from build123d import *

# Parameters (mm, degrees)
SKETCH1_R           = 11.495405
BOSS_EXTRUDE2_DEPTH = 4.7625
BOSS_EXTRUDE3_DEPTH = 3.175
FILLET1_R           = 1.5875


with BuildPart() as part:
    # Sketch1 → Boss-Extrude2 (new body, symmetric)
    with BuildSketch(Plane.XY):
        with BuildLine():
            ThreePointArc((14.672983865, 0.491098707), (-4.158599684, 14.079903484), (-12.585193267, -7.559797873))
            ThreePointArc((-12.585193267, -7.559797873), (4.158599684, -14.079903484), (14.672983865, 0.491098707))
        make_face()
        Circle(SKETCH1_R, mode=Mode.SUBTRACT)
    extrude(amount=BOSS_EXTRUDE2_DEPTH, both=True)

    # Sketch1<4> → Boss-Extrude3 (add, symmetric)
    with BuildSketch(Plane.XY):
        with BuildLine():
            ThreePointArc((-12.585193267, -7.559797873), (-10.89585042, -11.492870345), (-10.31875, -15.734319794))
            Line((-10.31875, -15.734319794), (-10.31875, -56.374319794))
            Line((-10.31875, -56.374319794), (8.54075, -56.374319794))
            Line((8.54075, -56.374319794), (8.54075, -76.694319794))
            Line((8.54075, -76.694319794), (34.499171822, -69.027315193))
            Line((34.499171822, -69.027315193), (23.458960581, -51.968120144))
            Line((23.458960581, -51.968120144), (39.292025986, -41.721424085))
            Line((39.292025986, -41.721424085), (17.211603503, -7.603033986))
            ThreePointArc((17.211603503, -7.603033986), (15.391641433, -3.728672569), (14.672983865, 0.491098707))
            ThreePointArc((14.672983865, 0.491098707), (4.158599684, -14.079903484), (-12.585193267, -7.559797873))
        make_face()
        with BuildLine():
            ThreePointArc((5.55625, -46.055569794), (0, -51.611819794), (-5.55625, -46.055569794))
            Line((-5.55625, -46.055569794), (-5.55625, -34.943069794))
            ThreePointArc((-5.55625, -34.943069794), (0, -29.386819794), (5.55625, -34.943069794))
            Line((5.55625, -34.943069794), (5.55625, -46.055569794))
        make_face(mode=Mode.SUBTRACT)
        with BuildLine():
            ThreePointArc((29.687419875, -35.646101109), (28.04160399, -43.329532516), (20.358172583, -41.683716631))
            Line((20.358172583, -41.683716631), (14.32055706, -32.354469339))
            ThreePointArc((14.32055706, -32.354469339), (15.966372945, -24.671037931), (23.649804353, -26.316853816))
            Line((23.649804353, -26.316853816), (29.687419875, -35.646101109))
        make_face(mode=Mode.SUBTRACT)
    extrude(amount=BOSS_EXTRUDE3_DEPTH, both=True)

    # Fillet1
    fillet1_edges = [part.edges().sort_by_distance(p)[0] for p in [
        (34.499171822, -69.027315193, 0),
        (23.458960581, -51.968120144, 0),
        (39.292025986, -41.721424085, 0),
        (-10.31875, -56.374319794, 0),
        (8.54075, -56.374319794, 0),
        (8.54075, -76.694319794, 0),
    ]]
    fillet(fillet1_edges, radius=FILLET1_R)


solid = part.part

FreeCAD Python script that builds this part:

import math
import FreeCAD as App
import Part
import Sketcher
from FreeCAD import Vector
Q = App.Units.Quantity


def edges_at(feature, points):
    """Names of the edges that pass closest to the given points."""
    edges = feature.Shape.Edges
    near = lambda p: min(range(len(edges)), key=lambda i: edges[i].distToShape(Part.Vertex(*p))[0])
    return sorted({f"Edge{near(p) + 1}" for p in points})

doc = App.newDocument("Part")
params = doc.addObject("Spreadsheet::Sheet", "Params")
for row, (alias, value) in enumerate([
    ("sketch1_radius", "0.578 in"),
    ("pad1_length", "0.375 in"),
    ("sketch2_height", "1.6 in"),
    ("sketch2_height2", "0.8 in"),
    ("sketch2_radius", "0.625 in"),
    ("sketch2_radius2", "0.625 in"),
    ("sketch2_radius3", "0.578 in"),
    ("pad2_length", "0.25 in"),
    ("fillet_radius", "0.0625 in"),
], start=1):
    params.set(f"A{row}", alias)
    params.set(f"B{row}", "=" + value)
    params.setAlias(f"B{row}", alias)

body = doc.addObject("PartDesign::Body", "Body")

# Sketch on XY plane
sketch1 = doc.addObject("Sketcher::SketchObject", "Sketch")
body.addObject(sketch1)
sketch1.AttachmentSupport = (doc.XY_Plane, [""])
sketch1.MapMode = "FlatFace"
sketch1.addGeometry([
    Part.ArcOfCircle(Part.Circle(Vector(0, 0, 0), Vector(0, 0, 1), 15), math.radians(2), math.radians(211)),
    Part.ArcOfCircle(Part.Circle(Vector(0, 0, 0), Vector(0, 0, 1), 15), math.radians(-149), math.radians(2)),
    Part.Circle(Vector(0, 0, 0), Vector(0, 0, 1), 11),
], False)
sketch1.addConstraint([
    Sketcher.Constraint("Tangent", 0, 1, 1, 2),
    Sketcher.Constraint("Coincident", 1, 1, 0, 2),
    Sketcher.Constraint("Coincident", 0, 3, -1, 1),
    Sketcher.Constraint("Coincident", 2, 3, -1, 1),
    Sketcher.Constraint("Radius", 0, Q("0.578 in")),
    Sketcher.Constraint("Diameter", 2, Q("22.99081 mm")),
    Sketcher.Constraint("DistanceY", -1, 1, 0, 1, Q("0.491099 mm")),
    Sketcher.Constraint("DistanceX", 1, 1, -1, 1, Q("12.585193 mm")),
])
sketch1.setExpression("Constraints[4]", "Params.sketch1_radius")
pad1 = doc.addObject("PartDesign::Pad", "Pad")
body.addObject(pad1)
pad1.Profile = sketch1
pad1.setExpression("Length", "Params.pad1_length")
pad1.Midplane = True

# Sketch on XY plane
sketch2 = doc.addObject("Sketcher::SketchObject", "Sketch001")
body.addObject(sketch2)
sketch2.AttachmentSupport = (doc.XY_Plane, [""])
sketch2.MapMode = "FlatFace"
sketch2.addGeometry([
    Part.ArcOfCircle(Part.Circle(Vector(-26.19375, -15.73432, 0), Vector(0, 0, 1), 15.875), math.radians(0), math.radians(30.992811)),  # 0
    Part.LineSegment(Vector(-10.31875, -15.73432, 0), Vector(-10.31875, -56.37432, 0)),  # 1
    Part.LineSegment(Vector(-10.31875, -56.37432, 0), Vector(8.54075, -56.37432, 0)),  # 2
    Part.LineSegment(Vector(8.54075, -56.37432, 0), Vector(8.54075, -76.69432, 0)),  # 3
    Part.LineSegment(Vector(8.54075, -76.69432, 0), Vector(34.499172, -69.027315, 0)),  # 4
    Part.LineSegment(Vector(34.499172, -69.027315, 0), Vector(23.458961, -51.96812, 0)),  # 5
    Part.LineSegment(Vector(23.458961, -51.96812, 0), Vector(39.292026, -41.721424, 0)),  # 6
    Part.LineSegment(Vector(39.292026, -41.721424, 0), Vector(17.211604, -7.603034, 0)),  # 7
    Part.ArcOfCircle(Part.Circle(Vector(30.5391, 1.022131, 0), Vector(0, 0, 1), 15.875), math.radians(-178.08305), math.radians(-147.090239)),  # 8
    Part.ArcOfCircle(Part.Circle(Vector(0, 0, 0), Vector(0, 0, 1), 14.6812), math.radians(-149.007189), math.radians(1.91695)),  # 9
    Part.LineSegment(Vector(5.55625, -34.94307, 0), Vector(5.55625, -46.05557, 0)),  # 10
    Part.ArcOfCircle(Part.Circle(Vector(0, -46.05557, 0), Vector(0, 0, 1), 5.55625), math.radians(180), math.radians(360)),  # 11
    Part.LineSegment(Vector(-5.55625, -46.05557, 0), Vector(-5.55625, -34.94307, 0)),  # 12
    Part.ArcOfCircle(Part.Circle(Vector(0, -34.94307, 0), Vector(0, 0, 1), 5.55625), math.radians(0), math.radians(180)),  # 13
    Part.LineSegment(Vector(23.649804, -26.316854, 0), Vector(29.68742, -35.646101, 0)),  # 14
    Part.ArcOfCircle(Part.Circle(Vector(25.022796, -38.664909, 0), Vector(0, 0, 1), 5.55625), math.radians(-147.090239), math.radians(32.909761)),  # 15
    Part.LineSegment(Vector(20.358173, -41.683717, 0), Vector(14.320557, -32.354469, 0)),  # 16
    Part.ArcOfCircle(Part.Circle(Vector(18.985181, -29.335662, 0), Vector(0, 0, 1), 5.55625), math.radians(32.909761), math.radians(212.909761)),  # 17
], False)
sketch2.addConstraint([
    Sketcher.Constraint("Coincident", 0, 1, 1, 1),
    Sketcher.Constraint("Coincident", 1, 2, 2, 1),
    Sketcher.Constraint("Coincident", 2, 2, 3, 1),
    Sketcher.Constraint("Coincident", 3, 2, 4, 1),
    Sketcher.Constraint("Coincident", 4, 2, 5, 1),
    Sketcher.Constraint("Coincident", 5, 2, 6, 1),
    Sketcher.Constraint("Coincident", 6, 2, 7, 1),
    Sketcher.Constraint("Coincident", 7, 2, 8, 2),
    Sketcher.Constraint("Coincident", 8, 1, 9, 2),
    Sketcher.Constraint("Coincident", 9, 1, 0, 2),
    Sketcher.Constraint("Coincident", 10, 2, 11, 2),
    Sketcher.Constraint("Coincident", 11, 1, 12, 1),
    Sketcher.Constraint("Coincident", 12, 2, 13, 2),
    Sketcher.Constraint("Coincident", 13, 1, 10, 1),
    Sketcher.Constraint("Coincident", 14, 2, 15, 2),
    Sketcher.Constraint("Coincident", 15, 1, 16, 1),
    Sketcher.Constraint("Coincident", 16, 2, 17, 2),
    Sketcher.Constraint("Coincident", 17, 1, 14, 1),
    Sketcher.Constraint("Vertical", 1),
    Sketcher.Constraint("Horizontal", 2),
    Sketcher.Constraint("Vertical", 3),
    Sketcher.Constraint("Vertical", 10),
    Sketcher.Constraint("Vertical", 12),
    Sketcher.Constraint("Coincident", 9, 3, -1, 1),
    Sketcher.Constraint("PointOnObject", 11, 3, -2),
    Sketcher.Constraint("DistanceY", 1, 2, 1, 1, Q("1.6 in")),
    Sketcher.Constraint("DistanceY", 3, 2, 3, 1, Q("0.8 in")),
    Sketcher.Constraint("Radius", 0, Q("0.625 in")),
    Sketcher.Constraint("Radius", 8, Q("0.625 in")),
    Sketcher.Constraint("Radius", 9, Q("0.578 in")),
    Sketcher.Constraint("Radius", 11, Q("0.21875 in")),
    Sketcher.Constraint("Radius", 15, Q("0.21875 in")),
    Sketcher.Constraint("Radius", 17, Q("0.21875 in")),
    Sketcher.Constraint("Distance", 5, Q("0.8 in")),
    Sketcher.Constraint("Distance", 7, Q("1.6 in")),
    Sketcher.Constraint("DistanceY", 10, 2, 10, 1, Q("0.4375 in")),
    Sketcher.Constraint("DistanceY", 12, 1, 12, 2, Q("0.4375 in")),
    Sketcher.Constraint("Distance", 14, Q("0.4375 in")),
    Sketcher.Constraint("Distance", 16, Q("0.4375 in")),
    Sketcher.Constraint("DistanceX", 2, 1, 2, 2, Q("0.7425 in")),
    Sketcher.Constraint("DistanceX", 0, 3, -1, 1, Q("1.03125 in")),
    Sketcher.Constraint("DistanceY", 11, 3, 13, 3, Q("0.4375 in")),
    Sketcher.Constraint("DistanceY", 1, 2, 11, 3, Q("0.40625 in")),
    Sketcher.Constraint("DistanceY", 2, 2, 10, 2, Q("0.40625 in")),
    Sketcher.Constraint("DistanceY", 1, 2, 11, 1, Q("0.40625 in")),
    Sketcher.Constraint("Distance", 6, Q("0.7425 in")),
    Sketcher.Constraint("DistanceX", -1, 1, 8, 3, Q("30.5391 mm")),
    Sketcher.Constraint("DistanceY", -1, 1, 8, 1, Q("0.491099 mm")),
    Sketcher.Constraint("DistanceY", 14, 2, -1, 1, Q("35.646101 mm")),
    Sketcher.Constraint("DistanceY", 11, 3, 8, 3, Q("47.077701 mm")),
    Sketcher.Constraint("DistanceY", 2, 2, 5, 2, Q("4.4062 mm")),
    Sketcher.Constraint("DistanceY", 13, 1, 16, 2, Q("2.5886 mm")),
    Sketcher.Constraint("DistanceY", 15, 3, -1, 1, Q("38.664909 mm")),
    Sketcher.Constraint("DistanceX", -1, 1, 17, 3, Q("18.985181 mm")),
    Sketcher.Constraint("DistanceY", 17, 3, -1, 1, Q("29.335662 mm")),
    Sketcher.Constraint("DistanceX", -1, 1, 4, 2, Q("34.499172 mm")),
    Sketcher.Constraint("DistanceX", -1, 1, 5, 2, Q("23.458961 mm")),
    Sketcher.Constraint("DistanceX", -1, 1, 14, 2, Q("29.68742 mm")),
    Sketcher.Constraint("DistanceX", 15, 3, 6, 2, Q("14.26923 mm")),
    Sketcher.Constraint("DistanceY", 0, 1, 9, 1, Q("8.174522 mm")),
])
sketch2.setExpression("Constraints[25]", "Params.sketch2_height")
sketch2.setExpression("Constraints[26]", "Params.sketch2_height2")
sketch2.setExpression("Constraints[27]", "Params.sketch2_radius")
sketch2.setExpression("Constraints[28]", "Params.sketch2_radius2")
sketch2.setExpression("Constraints[29]", "Params.sketch2_radius3")
pad2 = doc.addObject("PartDesign::Pad", "Pad001")
body.addObject(pad2)
pad2.Profile = sketch2
pad2.setExpression("Length", "Params.pad2_length")
pad2.Midplane = True
doc.recompute()

fillet = doc.addObject("PartDesign::Fillet", "Fillet")
body.addObject(fillet)
fillet.Base = (pad2, edges_at(pad2, [
    (34.499, -69.027, 0),
    (23.459, -51.968, 0),
    (39.292, -41.721, 0),
    (-10.319, -56.374, 0),
    (8.541, -56.374, 0),
    (8.541, -76.694, 0),
]))
fillet.setExpression("Radius", "Params.fillet_radius")

doc.recompute()
